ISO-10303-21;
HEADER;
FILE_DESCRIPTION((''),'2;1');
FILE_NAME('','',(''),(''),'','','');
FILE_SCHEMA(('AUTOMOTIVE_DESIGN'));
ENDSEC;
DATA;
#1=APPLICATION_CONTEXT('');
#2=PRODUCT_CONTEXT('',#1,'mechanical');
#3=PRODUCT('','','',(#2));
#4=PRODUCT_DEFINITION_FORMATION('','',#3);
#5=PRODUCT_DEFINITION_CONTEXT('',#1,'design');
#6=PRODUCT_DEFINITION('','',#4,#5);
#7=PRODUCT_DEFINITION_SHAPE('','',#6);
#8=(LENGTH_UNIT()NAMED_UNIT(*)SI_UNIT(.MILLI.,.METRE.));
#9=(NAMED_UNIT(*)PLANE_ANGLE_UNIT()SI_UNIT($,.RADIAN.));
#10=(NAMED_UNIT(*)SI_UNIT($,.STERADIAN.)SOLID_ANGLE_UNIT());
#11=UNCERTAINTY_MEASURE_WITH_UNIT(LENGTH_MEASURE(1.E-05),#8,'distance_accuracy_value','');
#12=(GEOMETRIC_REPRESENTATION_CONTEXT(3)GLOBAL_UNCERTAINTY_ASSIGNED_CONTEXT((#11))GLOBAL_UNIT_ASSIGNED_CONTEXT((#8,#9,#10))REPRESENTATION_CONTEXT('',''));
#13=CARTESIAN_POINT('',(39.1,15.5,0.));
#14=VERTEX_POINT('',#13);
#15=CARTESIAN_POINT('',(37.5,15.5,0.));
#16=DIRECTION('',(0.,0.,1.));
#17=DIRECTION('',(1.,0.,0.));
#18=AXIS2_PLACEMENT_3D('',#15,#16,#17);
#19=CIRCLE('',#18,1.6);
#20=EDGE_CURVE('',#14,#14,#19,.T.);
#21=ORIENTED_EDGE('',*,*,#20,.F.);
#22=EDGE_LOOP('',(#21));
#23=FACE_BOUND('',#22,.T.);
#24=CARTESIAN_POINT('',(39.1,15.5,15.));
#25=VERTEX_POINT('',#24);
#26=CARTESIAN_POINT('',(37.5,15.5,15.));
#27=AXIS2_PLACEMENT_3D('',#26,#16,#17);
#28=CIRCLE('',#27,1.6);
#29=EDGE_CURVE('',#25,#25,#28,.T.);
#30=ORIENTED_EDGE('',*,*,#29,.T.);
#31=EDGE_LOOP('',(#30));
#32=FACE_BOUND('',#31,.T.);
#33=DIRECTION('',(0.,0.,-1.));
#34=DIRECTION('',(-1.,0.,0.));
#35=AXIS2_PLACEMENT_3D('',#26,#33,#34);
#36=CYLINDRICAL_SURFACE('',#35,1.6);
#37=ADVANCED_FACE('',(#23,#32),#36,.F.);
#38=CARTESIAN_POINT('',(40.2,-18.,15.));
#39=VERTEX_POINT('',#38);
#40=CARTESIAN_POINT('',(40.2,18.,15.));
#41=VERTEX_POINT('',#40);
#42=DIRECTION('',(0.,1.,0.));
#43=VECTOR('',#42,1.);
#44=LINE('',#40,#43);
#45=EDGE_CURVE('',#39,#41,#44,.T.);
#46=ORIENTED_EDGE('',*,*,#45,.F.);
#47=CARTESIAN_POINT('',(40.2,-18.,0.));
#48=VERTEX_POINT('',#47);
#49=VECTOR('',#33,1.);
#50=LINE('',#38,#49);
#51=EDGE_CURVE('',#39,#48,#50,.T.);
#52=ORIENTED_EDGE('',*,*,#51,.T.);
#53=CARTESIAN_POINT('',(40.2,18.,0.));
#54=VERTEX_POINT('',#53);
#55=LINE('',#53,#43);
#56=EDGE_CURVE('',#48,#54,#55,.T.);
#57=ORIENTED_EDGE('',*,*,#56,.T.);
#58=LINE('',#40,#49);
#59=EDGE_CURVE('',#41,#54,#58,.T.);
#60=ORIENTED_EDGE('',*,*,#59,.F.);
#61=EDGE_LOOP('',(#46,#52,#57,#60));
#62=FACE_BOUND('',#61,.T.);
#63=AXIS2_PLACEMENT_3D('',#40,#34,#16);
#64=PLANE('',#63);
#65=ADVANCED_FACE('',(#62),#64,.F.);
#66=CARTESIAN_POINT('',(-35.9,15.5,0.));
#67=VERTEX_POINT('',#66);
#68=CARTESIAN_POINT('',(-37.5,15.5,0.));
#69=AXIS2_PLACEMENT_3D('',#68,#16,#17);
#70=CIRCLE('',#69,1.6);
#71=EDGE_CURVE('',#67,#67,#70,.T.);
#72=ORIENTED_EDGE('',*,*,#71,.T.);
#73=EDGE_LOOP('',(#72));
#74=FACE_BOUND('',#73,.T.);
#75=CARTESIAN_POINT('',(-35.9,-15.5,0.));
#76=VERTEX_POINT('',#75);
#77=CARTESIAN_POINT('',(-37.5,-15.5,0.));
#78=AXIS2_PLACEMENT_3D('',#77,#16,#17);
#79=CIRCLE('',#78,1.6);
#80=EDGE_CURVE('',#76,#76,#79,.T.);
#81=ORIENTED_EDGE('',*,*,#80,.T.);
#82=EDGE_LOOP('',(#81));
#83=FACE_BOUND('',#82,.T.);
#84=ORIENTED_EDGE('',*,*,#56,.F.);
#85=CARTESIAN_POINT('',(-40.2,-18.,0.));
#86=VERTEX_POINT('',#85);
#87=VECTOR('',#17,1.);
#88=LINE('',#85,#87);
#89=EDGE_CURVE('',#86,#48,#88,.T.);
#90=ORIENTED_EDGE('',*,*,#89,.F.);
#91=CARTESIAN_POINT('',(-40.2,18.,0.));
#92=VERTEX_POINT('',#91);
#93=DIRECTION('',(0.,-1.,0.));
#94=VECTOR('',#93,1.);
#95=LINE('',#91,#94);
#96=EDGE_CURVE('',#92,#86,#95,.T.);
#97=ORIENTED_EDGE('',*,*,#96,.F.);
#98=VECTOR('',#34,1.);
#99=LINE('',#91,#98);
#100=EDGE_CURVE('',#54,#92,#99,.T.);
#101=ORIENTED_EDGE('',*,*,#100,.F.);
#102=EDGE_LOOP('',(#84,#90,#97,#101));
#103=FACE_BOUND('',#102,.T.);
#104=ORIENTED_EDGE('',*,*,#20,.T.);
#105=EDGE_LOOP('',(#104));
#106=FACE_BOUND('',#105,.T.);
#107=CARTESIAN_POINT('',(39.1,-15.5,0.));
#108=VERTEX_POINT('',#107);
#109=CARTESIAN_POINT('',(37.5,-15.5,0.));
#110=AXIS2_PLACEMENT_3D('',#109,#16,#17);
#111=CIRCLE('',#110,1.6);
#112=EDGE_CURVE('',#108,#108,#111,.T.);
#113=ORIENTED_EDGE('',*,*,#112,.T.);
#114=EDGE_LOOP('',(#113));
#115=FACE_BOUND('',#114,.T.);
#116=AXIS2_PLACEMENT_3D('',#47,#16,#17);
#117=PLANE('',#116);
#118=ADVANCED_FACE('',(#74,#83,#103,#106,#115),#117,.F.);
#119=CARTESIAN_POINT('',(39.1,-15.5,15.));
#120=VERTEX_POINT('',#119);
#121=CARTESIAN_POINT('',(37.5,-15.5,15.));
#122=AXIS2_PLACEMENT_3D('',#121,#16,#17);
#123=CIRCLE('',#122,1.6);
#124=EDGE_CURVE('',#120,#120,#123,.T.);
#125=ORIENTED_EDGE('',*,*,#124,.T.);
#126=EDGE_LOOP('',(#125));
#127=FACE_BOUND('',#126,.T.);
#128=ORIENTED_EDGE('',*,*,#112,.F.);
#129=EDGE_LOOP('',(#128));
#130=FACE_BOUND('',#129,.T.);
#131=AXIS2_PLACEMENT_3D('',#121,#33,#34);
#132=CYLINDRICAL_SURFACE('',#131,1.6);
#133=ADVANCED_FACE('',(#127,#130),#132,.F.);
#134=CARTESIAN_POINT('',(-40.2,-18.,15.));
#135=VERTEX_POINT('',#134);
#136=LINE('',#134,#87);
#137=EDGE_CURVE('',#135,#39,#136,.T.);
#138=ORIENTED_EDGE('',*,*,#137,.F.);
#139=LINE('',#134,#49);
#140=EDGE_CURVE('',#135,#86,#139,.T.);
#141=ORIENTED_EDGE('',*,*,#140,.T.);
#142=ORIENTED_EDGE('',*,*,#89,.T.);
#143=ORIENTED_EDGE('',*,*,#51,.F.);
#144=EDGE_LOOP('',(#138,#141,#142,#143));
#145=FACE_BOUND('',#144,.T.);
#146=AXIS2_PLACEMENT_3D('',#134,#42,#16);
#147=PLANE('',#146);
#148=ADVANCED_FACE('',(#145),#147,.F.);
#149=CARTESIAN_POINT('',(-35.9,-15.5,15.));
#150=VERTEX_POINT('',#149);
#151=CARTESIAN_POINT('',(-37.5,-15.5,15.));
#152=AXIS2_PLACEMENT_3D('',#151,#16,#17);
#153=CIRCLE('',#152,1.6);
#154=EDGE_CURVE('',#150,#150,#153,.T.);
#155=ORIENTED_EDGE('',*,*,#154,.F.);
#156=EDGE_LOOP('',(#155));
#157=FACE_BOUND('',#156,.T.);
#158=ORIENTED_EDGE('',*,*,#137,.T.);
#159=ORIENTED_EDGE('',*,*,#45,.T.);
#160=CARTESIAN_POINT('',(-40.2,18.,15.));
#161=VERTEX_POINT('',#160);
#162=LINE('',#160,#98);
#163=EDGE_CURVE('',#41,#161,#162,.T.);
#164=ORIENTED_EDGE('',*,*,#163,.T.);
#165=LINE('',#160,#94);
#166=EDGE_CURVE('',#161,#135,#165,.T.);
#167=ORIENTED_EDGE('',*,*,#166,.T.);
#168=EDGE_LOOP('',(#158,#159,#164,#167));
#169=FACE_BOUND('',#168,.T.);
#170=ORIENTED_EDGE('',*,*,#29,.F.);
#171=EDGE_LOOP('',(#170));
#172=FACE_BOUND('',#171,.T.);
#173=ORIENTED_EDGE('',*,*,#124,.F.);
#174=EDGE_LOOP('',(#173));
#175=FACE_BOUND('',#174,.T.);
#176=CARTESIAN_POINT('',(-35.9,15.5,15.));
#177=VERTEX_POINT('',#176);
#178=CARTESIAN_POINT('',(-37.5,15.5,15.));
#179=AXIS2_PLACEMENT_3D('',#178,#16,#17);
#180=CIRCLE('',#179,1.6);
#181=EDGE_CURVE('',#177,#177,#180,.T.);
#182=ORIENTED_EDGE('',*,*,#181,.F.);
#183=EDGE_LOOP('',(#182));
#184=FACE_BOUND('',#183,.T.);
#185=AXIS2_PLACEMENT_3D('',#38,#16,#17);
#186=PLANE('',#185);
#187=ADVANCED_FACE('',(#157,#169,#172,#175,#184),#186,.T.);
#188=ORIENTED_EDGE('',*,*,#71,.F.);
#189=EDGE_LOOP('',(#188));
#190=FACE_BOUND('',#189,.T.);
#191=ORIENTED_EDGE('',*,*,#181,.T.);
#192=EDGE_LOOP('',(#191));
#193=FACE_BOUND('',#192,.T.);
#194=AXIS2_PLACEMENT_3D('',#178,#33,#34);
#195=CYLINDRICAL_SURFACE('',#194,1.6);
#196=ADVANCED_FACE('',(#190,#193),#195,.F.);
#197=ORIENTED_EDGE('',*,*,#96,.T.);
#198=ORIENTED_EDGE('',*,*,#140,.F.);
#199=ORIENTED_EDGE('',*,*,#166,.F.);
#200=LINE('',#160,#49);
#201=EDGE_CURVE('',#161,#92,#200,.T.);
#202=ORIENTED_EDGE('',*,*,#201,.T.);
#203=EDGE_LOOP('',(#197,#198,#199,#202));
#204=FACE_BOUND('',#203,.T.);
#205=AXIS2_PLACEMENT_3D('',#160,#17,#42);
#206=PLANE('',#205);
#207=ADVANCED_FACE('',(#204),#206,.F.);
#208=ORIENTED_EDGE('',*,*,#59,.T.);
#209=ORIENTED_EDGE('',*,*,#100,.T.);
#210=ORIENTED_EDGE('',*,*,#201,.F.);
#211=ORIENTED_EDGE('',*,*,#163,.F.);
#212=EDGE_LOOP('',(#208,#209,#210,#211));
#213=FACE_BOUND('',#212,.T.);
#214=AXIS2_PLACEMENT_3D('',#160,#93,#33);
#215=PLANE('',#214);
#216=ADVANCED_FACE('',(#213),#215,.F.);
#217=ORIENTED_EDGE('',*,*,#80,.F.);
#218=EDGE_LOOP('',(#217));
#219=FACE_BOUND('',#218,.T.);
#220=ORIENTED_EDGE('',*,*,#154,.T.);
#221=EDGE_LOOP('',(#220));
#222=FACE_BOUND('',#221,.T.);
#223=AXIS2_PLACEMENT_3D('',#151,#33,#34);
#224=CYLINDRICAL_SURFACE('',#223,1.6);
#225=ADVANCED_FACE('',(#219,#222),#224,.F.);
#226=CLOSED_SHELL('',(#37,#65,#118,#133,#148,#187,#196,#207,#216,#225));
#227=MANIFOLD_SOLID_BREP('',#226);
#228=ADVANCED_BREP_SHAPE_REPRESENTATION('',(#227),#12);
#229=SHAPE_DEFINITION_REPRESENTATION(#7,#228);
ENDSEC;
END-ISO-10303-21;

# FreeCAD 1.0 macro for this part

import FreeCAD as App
import Part
import Sketcher

V = App.Vector
Q = App.Units.Quantity


def add_polygon(sketch, points):
    """Adds a closed chain of lines whose ends are joined by coincident constraints."""
    first, n = sketch.GeometryCount, len(points)
    for a, b in zip(points, points[1:] + points[:1]):
        sketch.addGeometry(Part.LineSegment(App.Vector(*a, 0), App.Vector(*b, 0)), False)
    for i in range(n):
        sketch.addConstraint(Sketcher.Constraint("Coincident", first + i, 2, first + (i + 1) % n, 1))

doc = App.newDocument("Part")
body = doc.addObject("PartDesign::Body", "Body")

# Sketch on XY plane
sketch1 = body.newObject("Sketcher::SketchObject", "Sketch")
sketch1.AttachmentSupport = (doc.getObject("XY_Plane"), [""])
sketch1.MapMode = "FlatFace"
add_polygon(sketch1, [(-40.2, 18), (-40.2, -18), (40.2, -18), (40.2, 18)])  # lines 0-3
sketch1.addGeometry(Part.Circle(V(-37.5, -15.5, 0), V(0, 0, 1), 1.6), False)  # 4
sketch1.addGeometry(Part.Circle(V(37.5, -15.5, 0), V(0, 0, 1), 1.6), False)  # 5
sketch1.addGeometry(Part.Circle(V(-37.5, 15.5, 0), V(0, 0, 1), 1.6), False)  # 6
sketch1.addGeometry(Part.Circle(V(37.5, 15.5, 0), V(0, 0, 1), 1.6), False)  # 7
sketch1.addConstraint([
    Sketcher.Constraint("Vertical", 0),
    Sketcher.Constraint("Horizontal", 1),
    Sketcher.Constraint("Vertical", 2),
    Sketcher.Constraint("Horizontal", 3),
    Sketcher.Constraint("Equal", 4, 5),
    Sketcher.Constraint("Equal", 5, 6),
    Sketcher.Constraint("Equal", 6, 7),
    Sketcher.Constraint("Symmetric", 5, 3, 6, 3, -1, 1),
    Sketcher.Constraint("Symmetric", 4, 3, 7, 3, -1, 1),
    Sketcher.Constraint("Symmetric", 0, 2, 2, 2, -1, 1),
    Sketcher.Constraint("Symmetric", 4, 3, 5, 3, -2),
    Sketcher.Constraint("Diameter", 4, Q("3.2 mm")),
    Sketcher.Constraint("DistanceY", 0, 2, 0, 1, Q("36 mm")),
    Sketcher.Constraint("DistanceX", 1, 1, 1, 2, Q("80.4 mm")),
    Sketcher.Constraint("DistanceX", 4, 3, 5, 3, Q("75 mm")),
    Sketcher.Constraint("DistanceY", 4, 3, 6, 3, Q("31 mm")),
])
pad1 = body.newObject("PartDesign::Pad", "Pad")
pad1.Profile = sketch1
pad1.Length = 15

doc.recompute()
